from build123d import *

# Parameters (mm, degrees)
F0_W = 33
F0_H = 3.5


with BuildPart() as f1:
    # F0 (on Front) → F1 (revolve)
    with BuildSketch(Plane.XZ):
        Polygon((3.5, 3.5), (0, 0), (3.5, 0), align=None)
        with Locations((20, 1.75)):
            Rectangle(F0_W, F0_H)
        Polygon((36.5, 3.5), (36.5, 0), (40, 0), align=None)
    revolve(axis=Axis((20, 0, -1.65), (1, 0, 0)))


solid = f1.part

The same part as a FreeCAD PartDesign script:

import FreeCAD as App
import Part
import Sketcher
Q = App.Units.Quantity


def add_polygon(sketch, points):
    """Adds a closed chain of lines whose ends are joined by coincident constraints."""
    first, n = sketch.GeometryCount, len(points)
    for a, b in zip(points, points[1:] + points[:1]):
        sketch.addGeometry(Part.LineSegment(App.Vector(*a, 0), App.Vector(*b, 0)), False)
    for i in range(n):
        sketch.addConstraint(Sketcher.Constraint("Coincident", first + i, 2, first + (i + 1) % n, 1))

doc = App.newDocument("Part")
body = doc.addObject("PartDesign::Body", "Body")

# Sketch on XZ plane
sketch1 = body.newObject("Sketcher::SketchObject", "Sketch")
sketch1.AttachmentSupport = (doc.getObject("XZ_Plane"), [""])
sketch1.MapMode = "FlatFace"
add_polygon(sketch1, [(3.5, 3.5), (0, 0), (40, 0), (36.5, 3.5)])  # lines 0-3
sketch1.addGeometry(Part.LineSegment(App.Vector(0, -1.6, 0), App.Vector(40, -1.6, 0)), True)  # axis
sketch1.addConstraint([
    Sketcher.Constraint("Horizontal", 1),
    Sketcher.Constraint("Horizontal", 3),
    Sketcher.Constraint("Horizontal", 4),
    Sketcher.Constraint("Coincident", 0, 2, -1, 1),
    Sketcher.Constraint("PointOnObject", 4, 1, -2),
    Sketcher.Constraint("Perpendicular", 0, 2),
    Sketcher.Constraint("Vertical", 1, 2, 4, 2),
    Sketcher.Constraint("Equal", 0, 2),
    Sketcher.Constraint("DistanceX", 1, 1, 1, 2, Q("40 mm")),
    Sketcher.Constraint("DistanceX", 3, 2, 3, 1, Q("33 mm")),
    Sketcher.Constraint("DistanceY", 4, 1, -1, 1, Q("1.65 mm")),
])
revolution = body.newObject("PartDesign::Revolution", "Revolution")
revolution.Profile = sketch1
revolution.ReferenceAxis = (sketch1, ["Axis0"])
revolution.Angle = 360

doc.recompute()
